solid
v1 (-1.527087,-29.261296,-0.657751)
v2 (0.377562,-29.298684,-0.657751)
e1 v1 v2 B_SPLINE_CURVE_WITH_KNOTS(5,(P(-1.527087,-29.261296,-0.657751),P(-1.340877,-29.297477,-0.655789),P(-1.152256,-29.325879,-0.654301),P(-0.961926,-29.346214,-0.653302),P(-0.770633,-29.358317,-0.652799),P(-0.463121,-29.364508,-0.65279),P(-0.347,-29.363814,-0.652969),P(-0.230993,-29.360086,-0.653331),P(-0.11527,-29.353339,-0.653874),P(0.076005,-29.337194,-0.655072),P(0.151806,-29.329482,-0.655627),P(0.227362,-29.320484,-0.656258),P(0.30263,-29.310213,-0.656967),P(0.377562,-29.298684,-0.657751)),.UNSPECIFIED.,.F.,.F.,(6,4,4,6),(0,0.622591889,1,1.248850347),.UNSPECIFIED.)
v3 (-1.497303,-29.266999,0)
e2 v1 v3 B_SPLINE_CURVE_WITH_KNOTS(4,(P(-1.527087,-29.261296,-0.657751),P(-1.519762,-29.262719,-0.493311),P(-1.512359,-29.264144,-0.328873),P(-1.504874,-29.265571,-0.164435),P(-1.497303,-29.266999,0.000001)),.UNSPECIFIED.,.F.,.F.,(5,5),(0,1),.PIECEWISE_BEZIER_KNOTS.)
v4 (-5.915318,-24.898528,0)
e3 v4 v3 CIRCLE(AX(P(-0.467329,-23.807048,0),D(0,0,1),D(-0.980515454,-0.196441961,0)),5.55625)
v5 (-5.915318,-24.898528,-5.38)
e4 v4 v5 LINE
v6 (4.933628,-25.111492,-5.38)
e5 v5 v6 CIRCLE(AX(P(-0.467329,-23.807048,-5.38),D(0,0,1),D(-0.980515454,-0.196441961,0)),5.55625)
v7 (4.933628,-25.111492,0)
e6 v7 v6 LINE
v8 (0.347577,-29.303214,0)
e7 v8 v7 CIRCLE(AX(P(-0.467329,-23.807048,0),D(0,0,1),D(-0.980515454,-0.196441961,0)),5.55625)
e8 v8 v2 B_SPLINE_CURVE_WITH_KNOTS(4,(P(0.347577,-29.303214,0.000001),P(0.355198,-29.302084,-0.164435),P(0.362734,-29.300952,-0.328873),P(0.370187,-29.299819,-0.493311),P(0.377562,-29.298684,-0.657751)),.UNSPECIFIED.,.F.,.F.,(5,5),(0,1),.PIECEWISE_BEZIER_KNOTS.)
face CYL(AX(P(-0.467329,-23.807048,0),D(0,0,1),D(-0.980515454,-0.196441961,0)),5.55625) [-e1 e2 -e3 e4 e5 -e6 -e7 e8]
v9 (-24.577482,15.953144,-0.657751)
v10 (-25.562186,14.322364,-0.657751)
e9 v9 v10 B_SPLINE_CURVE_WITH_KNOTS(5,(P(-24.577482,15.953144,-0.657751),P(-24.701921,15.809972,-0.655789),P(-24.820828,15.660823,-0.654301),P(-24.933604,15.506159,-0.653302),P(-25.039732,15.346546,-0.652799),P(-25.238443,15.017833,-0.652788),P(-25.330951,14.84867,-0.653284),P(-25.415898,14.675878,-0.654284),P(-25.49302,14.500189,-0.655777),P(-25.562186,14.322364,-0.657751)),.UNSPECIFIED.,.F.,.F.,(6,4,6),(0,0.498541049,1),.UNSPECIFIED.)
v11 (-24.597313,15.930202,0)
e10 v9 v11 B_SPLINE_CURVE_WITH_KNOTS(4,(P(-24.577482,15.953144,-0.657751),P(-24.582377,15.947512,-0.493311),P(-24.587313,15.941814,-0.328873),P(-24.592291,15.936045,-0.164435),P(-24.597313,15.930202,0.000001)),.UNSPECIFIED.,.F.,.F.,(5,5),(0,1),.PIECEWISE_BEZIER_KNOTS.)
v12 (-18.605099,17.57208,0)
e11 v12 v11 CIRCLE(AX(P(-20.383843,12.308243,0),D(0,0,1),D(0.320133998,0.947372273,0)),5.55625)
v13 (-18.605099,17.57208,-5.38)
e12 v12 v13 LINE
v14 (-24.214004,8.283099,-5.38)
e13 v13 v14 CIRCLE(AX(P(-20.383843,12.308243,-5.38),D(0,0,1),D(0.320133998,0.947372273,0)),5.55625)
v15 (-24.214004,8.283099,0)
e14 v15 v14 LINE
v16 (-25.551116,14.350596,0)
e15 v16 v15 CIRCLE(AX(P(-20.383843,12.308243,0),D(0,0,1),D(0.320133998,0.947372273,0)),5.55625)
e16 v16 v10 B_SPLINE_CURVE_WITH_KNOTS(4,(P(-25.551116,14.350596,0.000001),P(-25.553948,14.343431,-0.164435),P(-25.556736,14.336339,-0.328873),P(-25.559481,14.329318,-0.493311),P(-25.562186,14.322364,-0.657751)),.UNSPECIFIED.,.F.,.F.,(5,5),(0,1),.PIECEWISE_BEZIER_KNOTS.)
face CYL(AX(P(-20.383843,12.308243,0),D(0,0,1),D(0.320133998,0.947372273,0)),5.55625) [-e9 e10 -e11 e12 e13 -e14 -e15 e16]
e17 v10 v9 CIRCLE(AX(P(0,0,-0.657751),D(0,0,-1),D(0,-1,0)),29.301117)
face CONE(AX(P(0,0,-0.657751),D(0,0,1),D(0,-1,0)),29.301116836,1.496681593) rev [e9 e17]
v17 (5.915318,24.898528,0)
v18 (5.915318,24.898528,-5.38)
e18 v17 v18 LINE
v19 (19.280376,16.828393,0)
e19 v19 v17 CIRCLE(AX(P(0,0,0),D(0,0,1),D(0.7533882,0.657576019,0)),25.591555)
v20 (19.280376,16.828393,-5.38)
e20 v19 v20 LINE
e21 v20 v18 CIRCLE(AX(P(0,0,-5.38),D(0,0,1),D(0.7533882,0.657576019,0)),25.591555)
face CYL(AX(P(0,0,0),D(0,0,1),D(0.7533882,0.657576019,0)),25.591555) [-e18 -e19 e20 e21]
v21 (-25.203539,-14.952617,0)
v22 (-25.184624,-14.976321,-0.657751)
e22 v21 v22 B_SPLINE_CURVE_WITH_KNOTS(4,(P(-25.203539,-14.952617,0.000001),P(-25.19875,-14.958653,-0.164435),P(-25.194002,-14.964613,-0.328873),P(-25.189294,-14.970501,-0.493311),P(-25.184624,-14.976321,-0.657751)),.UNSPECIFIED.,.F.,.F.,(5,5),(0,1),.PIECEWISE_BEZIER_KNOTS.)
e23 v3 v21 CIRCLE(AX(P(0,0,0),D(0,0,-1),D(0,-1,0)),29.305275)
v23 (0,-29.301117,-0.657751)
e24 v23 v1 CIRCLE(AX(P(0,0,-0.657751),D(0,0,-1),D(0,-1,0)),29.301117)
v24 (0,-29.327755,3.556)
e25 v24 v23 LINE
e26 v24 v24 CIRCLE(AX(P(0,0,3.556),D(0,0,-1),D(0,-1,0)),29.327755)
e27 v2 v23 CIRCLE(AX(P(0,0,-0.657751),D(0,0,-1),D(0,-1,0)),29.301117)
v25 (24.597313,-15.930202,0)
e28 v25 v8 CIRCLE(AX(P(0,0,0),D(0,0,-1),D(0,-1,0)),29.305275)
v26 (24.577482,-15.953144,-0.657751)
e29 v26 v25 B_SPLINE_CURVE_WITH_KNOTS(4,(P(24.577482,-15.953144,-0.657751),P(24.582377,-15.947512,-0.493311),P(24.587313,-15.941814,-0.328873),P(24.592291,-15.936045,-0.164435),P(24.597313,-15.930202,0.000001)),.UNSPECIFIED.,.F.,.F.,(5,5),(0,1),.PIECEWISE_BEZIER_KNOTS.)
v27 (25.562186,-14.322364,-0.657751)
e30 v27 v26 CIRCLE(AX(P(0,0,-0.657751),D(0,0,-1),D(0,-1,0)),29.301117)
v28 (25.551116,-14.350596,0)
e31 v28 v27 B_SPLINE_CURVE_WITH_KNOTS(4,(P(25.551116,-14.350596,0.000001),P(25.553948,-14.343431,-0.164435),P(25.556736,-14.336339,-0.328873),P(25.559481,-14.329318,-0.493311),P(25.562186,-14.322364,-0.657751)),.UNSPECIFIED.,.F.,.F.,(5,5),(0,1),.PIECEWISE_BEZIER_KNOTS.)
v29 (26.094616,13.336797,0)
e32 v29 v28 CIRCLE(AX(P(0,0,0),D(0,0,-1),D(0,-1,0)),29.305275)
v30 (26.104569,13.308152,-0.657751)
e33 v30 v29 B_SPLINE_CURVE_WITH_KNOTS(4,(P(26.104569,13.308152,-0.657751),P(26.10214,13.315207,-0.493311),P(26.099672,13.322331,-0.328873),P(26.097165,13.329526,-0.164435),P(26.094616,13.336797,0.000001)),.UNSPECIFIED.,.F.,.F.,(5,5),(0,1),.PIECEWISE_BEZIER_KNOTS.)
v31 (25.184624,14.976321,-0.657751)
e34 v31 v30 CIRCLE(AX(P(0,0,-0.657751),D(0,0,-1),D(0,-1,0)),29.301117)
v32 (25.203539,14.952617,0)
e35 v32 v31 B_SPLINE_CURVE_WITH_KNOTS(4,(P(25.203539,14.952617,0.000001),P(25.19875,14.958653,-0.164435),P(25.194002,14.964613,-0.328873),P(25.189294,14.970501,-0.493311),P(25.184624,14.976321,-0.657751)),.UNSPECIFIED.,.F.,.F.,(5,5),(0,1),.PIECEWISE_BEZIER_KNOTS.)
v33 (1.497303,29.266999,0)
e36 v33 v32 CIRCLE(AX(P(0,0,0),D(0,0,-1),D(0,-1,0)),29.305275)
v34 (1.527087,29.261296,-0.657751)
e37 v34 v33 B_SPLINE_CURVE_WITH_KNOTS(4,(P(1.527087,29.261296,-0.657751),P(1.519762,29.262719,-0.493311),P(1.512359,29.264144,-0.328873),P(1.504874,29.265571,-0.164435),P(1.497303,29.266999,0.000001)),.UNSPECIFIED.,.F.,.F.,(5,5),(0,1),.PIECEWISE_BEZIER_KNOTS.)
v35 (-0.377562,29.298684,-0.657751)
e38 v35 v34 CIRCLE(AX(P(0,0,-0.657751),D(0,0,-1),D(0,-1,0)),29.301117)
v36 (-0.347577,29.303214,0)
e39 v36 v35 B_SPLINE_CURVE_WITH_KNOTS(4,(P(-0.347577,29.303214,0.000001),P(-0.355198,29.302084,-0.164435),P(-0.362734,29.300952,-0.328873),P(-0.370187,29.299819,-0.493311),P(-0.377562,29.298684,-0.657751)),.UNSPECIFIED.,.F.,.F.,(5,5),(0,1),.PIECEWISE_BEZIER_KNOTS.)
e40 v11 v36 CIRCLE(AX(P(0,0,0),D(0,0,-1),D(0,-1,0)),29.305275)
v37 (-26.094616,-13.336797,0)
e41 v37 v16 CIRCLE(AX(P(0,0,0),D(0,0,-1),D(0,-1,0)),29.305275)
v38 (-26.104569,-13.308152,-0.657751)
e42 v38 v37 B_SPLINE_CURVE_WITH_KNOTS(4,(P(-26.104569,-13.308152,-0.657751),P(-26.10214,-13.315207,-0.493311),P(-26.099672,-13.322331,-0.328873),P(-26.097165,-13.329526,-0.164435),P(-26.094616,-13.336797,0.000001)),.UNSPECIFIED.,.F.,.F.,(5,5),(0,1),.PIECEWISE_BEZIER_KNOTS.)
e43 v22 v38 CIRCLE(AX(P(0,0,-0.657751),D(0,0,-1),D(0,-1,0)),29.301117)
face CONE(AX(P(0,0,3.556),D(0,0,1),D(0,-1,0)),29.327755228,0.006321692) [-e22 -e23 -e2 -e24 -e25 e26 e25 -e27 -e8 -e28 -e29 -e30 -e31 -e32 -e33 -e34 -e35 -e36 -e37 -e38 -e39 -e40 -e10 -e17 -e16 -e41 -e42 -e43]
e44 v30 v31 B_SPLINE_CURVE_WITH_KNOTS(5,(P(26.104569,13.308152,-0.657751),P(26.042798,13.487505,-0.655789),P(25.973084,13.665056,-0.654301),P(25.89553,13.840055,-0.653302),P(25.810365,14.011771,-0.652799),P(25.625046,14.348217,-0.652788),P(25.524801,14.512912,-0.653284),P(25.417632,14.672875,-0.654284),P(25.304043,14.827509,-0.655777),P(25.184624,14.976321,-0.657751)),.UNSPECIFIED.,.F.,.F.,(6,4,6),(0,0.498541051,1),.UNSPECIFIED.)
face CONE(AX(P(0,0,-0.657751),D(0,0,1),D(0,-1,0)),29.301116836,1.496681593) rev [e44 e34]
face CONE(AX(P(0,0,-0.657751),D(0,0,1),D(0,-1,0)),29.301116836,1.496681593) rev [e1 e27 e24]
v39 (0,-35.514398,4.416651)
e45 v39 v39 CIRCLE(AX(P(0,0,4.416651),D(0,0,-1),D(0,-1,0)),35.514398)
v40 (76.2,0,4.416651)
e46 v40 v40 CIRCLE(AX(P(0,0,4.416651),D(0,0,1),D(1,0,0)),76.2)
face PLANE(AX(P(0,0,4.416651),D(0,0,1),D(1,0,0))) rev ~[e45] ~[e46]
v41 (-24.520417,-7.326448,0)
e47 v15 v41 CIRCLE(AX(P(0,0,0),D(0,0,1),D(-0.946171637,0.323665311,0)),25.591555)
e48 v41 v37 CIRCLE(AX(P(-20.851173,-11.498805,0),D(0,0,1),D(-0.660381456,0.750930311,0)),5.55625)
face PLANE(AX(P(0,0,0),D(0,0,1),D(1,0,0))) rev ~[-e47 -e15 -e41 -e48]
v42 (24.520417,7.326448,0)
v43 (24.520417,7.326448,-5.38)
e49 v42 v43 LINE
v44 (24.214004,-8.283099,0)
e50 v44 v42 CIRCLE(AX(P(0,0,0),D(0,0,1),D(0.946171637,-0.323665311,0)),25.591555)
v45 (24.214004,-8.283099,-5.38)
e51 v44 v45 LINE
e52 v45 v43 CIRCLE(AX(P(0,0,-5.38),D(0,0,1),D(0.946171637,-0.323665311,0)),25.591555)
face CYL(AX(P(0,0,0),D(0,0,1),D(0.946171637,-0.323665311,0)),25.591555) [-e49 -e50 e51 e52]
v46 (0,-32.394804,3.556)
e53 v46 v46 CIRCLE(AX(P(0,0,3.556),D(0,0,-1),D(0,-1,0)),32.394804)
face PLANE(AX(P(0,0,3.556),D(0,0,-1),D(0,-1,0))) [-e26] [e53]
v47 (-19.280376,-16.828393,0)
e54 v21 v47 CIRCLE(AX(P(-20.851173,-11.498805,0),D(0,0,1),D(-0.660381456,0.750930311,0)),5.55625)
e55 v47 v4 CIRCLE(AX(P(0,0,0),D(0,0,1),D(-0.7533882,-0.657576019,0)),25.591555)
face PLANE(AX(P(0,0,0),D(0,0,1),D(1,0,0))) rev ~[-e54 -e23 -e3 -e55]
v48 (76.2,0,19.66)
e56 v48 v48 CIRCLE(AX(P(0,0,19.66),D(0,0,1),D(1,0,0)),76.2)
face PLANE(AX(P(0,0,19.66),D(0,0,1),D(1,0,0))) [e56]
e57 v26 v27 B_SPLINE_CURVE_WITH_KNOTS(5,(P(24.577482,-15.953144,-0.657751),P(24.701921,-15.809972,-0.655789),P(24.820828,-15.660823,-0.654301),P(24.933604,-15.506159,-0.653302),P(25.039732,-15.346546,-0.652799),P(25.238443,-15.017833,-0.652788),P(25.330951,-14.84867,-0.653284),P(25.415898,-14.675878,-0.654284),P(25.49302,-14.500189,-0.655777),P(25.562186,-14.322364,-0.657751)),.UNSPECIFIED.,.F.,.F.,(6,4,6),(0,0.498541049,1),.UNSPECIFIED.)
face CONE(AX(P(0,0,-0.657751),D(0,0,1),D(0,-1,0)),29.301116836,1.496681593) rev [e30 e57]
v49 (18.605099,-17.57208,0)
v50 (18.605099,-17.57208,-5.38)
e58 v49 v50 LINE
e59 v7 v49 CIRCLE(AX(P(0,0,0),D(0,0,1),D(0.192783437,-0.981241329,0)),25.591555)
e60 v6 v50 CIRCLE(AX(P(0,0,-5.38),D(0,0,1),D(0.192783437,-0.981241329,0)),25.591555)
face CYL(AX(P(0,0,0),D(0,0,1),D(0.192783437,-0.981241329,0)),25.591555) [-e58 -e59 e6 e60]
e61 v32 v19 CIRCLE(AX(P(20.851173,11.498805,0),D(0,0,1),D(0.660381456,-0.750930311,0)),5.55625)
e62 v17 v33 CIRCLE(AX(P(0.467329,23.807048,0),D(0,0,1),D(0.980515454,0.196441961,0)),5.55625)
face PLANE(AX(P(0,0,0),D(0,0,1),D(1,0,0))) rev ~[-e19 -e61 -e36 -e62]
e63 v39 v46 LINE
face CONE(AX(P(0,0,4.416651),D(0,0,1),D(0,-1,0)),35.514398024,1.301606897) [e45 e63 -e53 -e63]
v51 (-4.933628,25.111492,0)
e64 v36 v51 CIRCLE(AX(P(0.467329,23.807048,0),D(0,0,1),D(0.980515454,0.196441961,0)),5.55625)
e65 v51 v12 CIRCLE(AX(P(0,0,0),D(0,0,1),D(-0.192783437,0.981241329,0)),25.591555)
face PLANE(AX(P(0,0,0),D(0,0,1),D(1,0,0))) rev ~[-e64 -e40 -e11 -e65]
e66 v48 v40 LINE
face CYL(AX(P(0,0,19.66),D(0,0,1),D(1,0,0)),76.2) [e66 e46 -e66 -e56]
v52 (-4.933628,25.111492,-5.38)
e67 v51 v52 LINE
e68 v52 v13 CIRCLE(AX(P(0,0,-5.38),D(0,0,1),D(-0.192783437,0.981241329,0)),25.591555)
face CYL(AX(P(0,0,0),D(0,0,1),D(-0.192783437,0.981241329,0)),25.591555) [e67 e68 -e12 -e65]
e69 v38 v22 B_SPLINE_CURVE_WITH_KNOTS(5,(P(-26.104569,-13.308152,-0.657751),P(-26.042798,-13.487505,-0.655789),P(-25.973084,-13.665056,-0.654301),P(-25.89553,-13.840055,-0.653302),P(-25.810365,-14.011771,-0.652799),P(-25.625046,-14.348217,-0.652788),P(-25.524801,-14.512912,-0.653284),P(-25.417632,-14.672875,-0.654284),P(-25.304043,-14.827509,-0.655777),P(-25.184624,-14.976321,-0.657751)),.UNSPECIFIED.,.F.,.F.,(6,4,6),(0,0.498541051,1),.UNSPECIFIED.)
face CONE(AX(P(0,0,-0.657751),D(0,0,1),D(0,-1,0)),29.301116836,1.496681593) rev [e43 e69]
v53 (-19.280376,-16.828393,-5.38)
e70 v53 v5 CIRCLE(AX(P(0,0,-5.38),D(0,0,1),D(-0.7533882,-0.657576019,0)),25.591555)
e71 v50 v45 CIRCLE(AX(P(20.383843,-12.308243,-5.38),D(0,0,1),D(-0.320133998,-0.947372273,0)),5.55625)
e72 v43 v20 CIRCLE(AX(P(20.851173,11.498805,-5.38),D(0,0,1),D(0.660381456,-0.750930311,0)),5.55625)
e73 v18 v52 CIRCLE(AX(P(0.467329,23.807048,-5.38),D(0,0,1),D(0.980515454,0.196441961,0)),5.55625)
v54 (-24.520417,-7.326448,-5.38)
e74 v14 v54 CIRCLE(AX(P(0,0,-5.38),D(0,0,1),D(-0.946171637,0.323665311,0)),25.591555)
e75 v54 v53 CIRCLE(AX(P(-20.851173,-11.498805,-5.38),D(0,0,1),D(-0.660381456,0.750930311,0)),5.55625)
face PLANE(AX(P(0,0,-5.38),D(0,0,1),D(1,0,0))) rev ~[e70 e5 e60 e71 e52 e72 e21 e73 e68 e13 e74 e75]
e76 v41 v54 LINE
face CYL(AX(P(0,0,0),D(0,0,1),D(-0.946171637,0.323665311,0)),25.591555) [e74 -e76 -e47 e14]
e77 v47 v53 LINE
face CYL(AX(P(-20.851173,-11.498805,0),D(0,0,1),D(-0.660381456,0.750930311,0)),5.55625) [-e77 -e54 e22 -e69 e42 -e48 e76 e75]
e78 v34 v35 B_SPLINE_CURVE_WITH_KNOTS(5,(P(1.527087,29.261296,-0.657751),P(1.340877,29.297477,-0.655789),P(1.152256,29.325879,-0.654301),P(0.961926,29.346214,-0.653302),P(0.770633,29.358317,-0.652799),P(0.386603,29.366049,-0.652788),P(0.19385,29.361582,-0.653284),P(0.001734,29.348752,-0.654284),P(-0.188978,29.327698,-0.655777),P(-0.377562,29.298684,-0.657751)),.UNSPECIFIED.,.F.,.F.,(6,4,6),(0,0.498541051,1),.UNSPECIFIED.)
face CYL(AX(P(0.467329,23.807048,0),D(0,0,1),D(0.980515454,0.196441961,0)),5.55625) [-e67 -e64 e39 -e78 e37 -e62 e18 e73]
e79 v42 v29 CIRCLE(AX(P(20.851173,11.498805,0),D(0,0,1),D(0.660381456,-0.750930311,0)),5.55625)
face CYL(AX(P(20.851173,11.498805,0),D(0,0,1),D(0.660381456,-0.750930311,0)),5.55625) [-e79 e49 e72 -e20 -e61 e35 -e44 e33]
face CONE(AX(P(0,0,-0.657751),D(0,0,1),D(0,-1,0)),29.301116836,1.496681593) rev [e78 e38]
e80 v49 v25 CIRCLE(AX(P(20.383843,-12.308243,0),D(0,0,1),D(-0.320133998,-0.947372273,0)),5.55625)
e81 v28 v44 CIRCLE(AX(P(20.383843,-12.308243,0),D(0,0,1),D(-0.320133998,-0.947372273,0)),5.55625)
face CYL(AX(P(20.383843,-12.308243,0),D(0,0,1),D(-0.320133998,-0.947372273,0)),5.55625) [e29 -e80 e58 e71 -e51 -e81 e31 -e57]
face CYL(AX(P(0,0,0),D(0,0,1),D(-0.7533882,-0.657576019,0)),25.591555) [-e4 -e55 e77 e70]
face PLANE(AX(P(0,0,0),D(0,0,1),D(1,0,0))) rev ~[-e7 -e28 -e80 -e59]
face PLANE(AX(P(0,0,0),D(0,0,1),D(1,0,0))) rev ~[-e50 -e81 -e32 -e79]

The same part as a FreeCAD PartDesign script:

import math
import FreeCAD as App
import Part
import Sketcher
Q = App.Units.Quantity


def add_polygon(sketch, points):
    """Adds a closed chain of lines whose ends are joined by coincident constraints."""
    first, n = sketch.GeometryCount, len(points)
    for a, b in zip(points, points[1:] + points[:1]):
        sketch.addGeometry(Part.LineSegment(App.Vector(*a, 0), App.Vector(*b, 0)), False)
    for i in range(n):
        sketch.addConstraint(Sketcher.Constraint("Coincident", first + i, 2, first + (i + 1) % n, 1))

doc = App.newDocument("Part")
body = doc.addObject("PartDesign::Body", "Body")

# Sketch on XY plane
sketch1 = doc.addObject("Sketcher::SketchObject", "Sketch")
body.addObject(sketch1)
sketch1.AttachmentSupport = (doc.XY_Plane, [""])
sketch1.MapMode = "FlatFace"
sketch1.addGeometry(Part.Circle(App.Vector(0, 0, 0), App.Vector(0, 0, 1), 41), False)
sketch1.addConstraint([
    Sketcher.Constraint("Coincident", 0, 3, -1, 1),
    Sketcher.Constraint("Diameter", 0, Q("81.129101 mm")),
])
pad1 = doc.addObject("PartDesign::Pad", "Pad")
body.addObject(pad1)
pad1.Profile = sketch1
pad1.Length = 10

# Sketch on XY plane
sketch2 = doc.addObject("Sketcher::SketchObject", "Sketch001")
body.addObject(sketch2)
sketch2.AttachmentSupport = (doc.XY_Plane, [""])
sketch2.MapMode = "FlatFace"
sketch2.addGeometry([
    Part.ArcOfCircle(Part.Circle(App.Vector(-20, 12, 0), App.Vector(0, 0, 1), 6), math.radians(71), math.radians(226)),  # 0
    Part.ArcOfCircle(Part.Circle(App.Vector(0, 0, 0), App.Vector(0, 0, 1), 26), math.radians(101), math.radians(137)),  # 1
    Part.ArcOfCircle(Part.Circle(App.Vector(0, 24, 0), App.Vector(0, 0, 1), 6), math.radians(11), math.radians(166)),  # 2
    Part.ArcOfCircle(Part.Circle(App.Vector(0, 0, 0), App.Vector(0, 0, 1), 26), math.radians(41), math.radians(77)),  # 3
    Part.ArcOfCircle(Part.Circle(App.Vector(21, 11, 0), App.Vector(0, 0, 1), 6), math.radians(-49), math.radians(106)),  # 4
    Part.ArcOfCircle(Part.Circle(App.Vector(0, 0, 0), App.Vector(0, 0, 1), 26), math.radians(-19), math.radians(17)),  # 5
    Part.ArcOfCircle(Part.Circle(App.Vector(20, -12, 0), App.Vector(0, 0, 1), 6), math.radians(-109), math.radians(46)),  # 6
    Part.ArcOfCircle(Part.Circle(App.Vector(0, 0, 0), App.Vector(0, 0, 1), 26), math.radians(-79), math.radians(-43)),  # 7
    Part.ArcOfCircle(Part.Circle(App.Vector(0, -24, 0), App.Vector(0, 0, 1), 6), math.radians(-169), math.radians(-14)),  # 8
    Part.ArcOfCircle(Part.Circle(App.Vector(0, 0, 0), App.Vector(0, 0, 1), 26), math.radians(-139), math.radians(-103)),  # 9
    Part.ArcOfCircle(Part.Circle(App.Vector(-21, -11, 0), App.Vector(0, 0, 1), 6), math.radians(131), math.radians(286)),  # 10
    Part.ArcOfCircle(Part.Circle(App.Vector(0, 0, 0), App.Vector(0, 0, 1), 26), math.radians(161), math.radians(197)),  # 11
], False)
sketch2.addConstraint([
    Sketcher.Constraint("Coincident", 0, 1, 1, 2),
    Sketcher.Constraint("Coincident", 1, 1, 2, 2),
    Sketcher.Constraint("Coincident", 2, 1, 3, 2),
    Sketcher.Constraint("Coincident", 3, 1, 4, 2),
    Sketcher.Constraint("Coincident", 4, 1, 5, 2),
    Sketcher.Constraint("Coincident", 5, 1, 6, 2),
    Sketcher.Constraint("Coincident", 6, 1, 7, 2),
    Sketcher.Constraint("Coincident", 7, 1, 8, 2),
    Sketcher.Constraint("Coincident", 8, 1, 9, 2),
    Sketcher.Constraint("Coincident", 9, 1, 10, 2),
    Sketcher.Constraint("Coincident", 10, 1, 11, 2),
    Sketcher.Constraint("Coincident", 11, 1, 0, 2),
    Sketcher.Constraint("Coincident", 1, 3, -1, 1),
    Sketcher.Constraint("Coincident", 3, 3, -1, 1),
    Sketcher.Constraint("Coincident", 5, 3, -1, 1),
    Sketcher.Constraint("Coincident", 7, 3, -1, 1),
    Sketcher.Constraint("Coincident", 9, 3, -1, 1),
    Sketcher.Constraint("Coincident", 11, 3, -1, 1),
    Sketcher.Constraint("Equal", 0, 2),
    Sketcher.Constraint("Equal", 1, 3),
    Sketcher.Constraint("Equal", 2, 4),
    Sketcher.Constraint("Equal", 3, 5),
    Sketcher.Constraint("Equal", 4, 6),
    Sketcher.Constraint("Equal", 5, 7),
    Sketcher.Constraint("Equal", 6, 8),
    Sketcher.Constraint("Equal", 7, 9),
    Sketcher.Constraint("Equal", 8, 10),
    Sketcher.Constraint("Equal", 9, 11),
    Sketcher.Constraint("Symmetric", 0, 3, 6, 3, -1, 1),
    Sketcher.Constraint("Symmetric", 2, 3, 8, 3, -1, 1),
    Sketcher.Constraint("Symmetric", 4, 3, 10, 3, -1, 1),
    Sketcher.Constraint("Radius", 0, Q("0.21875 in")),
    Sketcher.Constraint("Radius", 1, Q("25.591555 mm")),
    Sketcher.Constraint("DistanceX", 0, 1, -1, 1, Q("18.605099 mm")),
    Sketcher.Constraint("DistanceY", 5, 1, -1, 1, Q("8.283099 mm")),
    Sketcher.Constraint("DistanceX", -1, 1, 2, 3, Q("0.467329 mm")),
    Sketcher.Constraint("DistanceY", -1, 1, 1, 1, Q("25.111492 mm")),
    Sketcher.Constraint("DistanceY", -1, 1, 4, 1, Q("7.326448 mm")),
    Sketcher.Constraint("DistanceY", 4, 3, 0, 3, Q("0.809438 mm")),
])
pad2 = doc.addObject("PartDesign::Pad", "Pad001")
body.addObject(pad2)
pad2.Profile = sketch2
pad2.Length = 5.38
pad2.Reversed = True

# Sketch on an angled plane
sketch3 = doc.addObject("Sketcher::SketchObject", "Sketch002")
body.addObject(sketch3)
sketch3.Placement = App.Placement(App.Vector(0, 0, 0), App.Rotation(App.Vector(0, 0, -1), App.Vector(0.019647086, 0.999806977, 0), App.Vector(0.999806977, -0.019647086, 0), "ZXY"))
add_polygon(sketch3, [(0.2, 36.1), (0.2, 40.6), (-4.4, 40.6), (-4.4, 35.5), (-3.6, 32.4), (-3.6, 29.3), (0.7, 29.3)])  # lines 0-6
sketch3.addConstraint([
    Sketcher.Constraint("Vertical", 0),
    Sketcher.Constraint("Horizontal", 1),
    Sketcher.Constraint("Vertical", 2),
    Sketcher.Constraint("Vertical", 4),
    Sketcher.Constraint("DistanceX", 3, 2, -1, 1, Q("0.14 in")),
    Sketcher.Constraint("DistanceX", 1, 2, 1, 1, Q("4.570131 mm")),
    Sketcher.Constraint("DistanceY", 0, 1, 0, 2, Q("4.510541 mm")),
    Sketcher.Constraint("DistanceY", 4, 2, 4, 1, Q("3.067049 mm")),
    Sketcher.Constraint("DistanceY", 2, 2, 2, 1, Q("5.088728 mm")),
    Sketcher.Constraint("DistanceX", -1, 1, 0, 2, Q("0.15348 mm")),
    Sketcher.Constraint("DistanceX", -1, 1, 5, 2, Q("0.657751 mm")),
    Sketcher.Constraint("DistanceY", 3, 2, 1, 2, Q("8.208322 mm")),
    Sketcher.Constraint("DistanceY", 5, 2, 4, 2, Q("0.026638 mm")),
    Sketcher.Constraint("DistanceY", -1, 1, 0, 2, Q("40.603126 mm")),
])
groove = doc.addObject("PartDesign::Groove", "Groove")
body.addObject(groove)
groove.Profile = sketch3
groove.ReferenceAxis = (sketch3, ["H_Axis"])
groove.Angle = 360

# Sketch on XY plane
sketch4 = doc.addObject("Sketcher::SketchObject", "Sketch003")
body.addObject(sketch4)
sketch4.AttachmentSupport = (doc.XY_Plane, [""])
sketch4.MapMode = "FlatFace"
sketch4.AttachmentOffset = App.Placement(App.Vector(0, 0, 10), App.Rotation())
sketch4.addGeometry(Part.Circle(App.Vector(0, 0, 0), App.Vector(0, 0, 1), 76), False)
sketch4.addConstraint([
    Sketcher.Constraint("Coincident", 0, 3, -1, 1),
    Sketcher.Constraint("Diameter", 0, Q("6 in")),
])
pad3 = doc.addObject("PartDesign::Pad", "Pad002")
body.addObject(pad3)
pad3.Profile = sketch4
pad3.Length = 5.583349
pad3.Reversed = True

# Sketch on XY plane
sketch5 = doc.addObject("Sketcher::SketchObject", "Sketch004")
body.addObject(sketch5)
sketch5.AttachmentSupport = (doc.XY_Plane, [""])
sketch5.MapMode = "FlatFace"
sketch5.AttachmentOffset = App.Placement(App.Vector(0, 0, 19.66), App.Rotation())
sketch5.addGeometry(Part.Circle(App.Vector(0, 0, 0), App.Vector(0, 0, 1), 76), False)
sketch5.addConstraint([
    Sketcher.Constraint("Coincident", 0, 3, -1, 1),
    Sketcher.Constraint("Diameter", 0, Q("6 in")),
])
pad4 = doc.addObject("PartDesign::Pad", "Pad003")
body.addObject(pad4)
pad4.Profile = sketch5
pad4.Length = 9.66
pad4.Reversed = True

doc.recompute()
